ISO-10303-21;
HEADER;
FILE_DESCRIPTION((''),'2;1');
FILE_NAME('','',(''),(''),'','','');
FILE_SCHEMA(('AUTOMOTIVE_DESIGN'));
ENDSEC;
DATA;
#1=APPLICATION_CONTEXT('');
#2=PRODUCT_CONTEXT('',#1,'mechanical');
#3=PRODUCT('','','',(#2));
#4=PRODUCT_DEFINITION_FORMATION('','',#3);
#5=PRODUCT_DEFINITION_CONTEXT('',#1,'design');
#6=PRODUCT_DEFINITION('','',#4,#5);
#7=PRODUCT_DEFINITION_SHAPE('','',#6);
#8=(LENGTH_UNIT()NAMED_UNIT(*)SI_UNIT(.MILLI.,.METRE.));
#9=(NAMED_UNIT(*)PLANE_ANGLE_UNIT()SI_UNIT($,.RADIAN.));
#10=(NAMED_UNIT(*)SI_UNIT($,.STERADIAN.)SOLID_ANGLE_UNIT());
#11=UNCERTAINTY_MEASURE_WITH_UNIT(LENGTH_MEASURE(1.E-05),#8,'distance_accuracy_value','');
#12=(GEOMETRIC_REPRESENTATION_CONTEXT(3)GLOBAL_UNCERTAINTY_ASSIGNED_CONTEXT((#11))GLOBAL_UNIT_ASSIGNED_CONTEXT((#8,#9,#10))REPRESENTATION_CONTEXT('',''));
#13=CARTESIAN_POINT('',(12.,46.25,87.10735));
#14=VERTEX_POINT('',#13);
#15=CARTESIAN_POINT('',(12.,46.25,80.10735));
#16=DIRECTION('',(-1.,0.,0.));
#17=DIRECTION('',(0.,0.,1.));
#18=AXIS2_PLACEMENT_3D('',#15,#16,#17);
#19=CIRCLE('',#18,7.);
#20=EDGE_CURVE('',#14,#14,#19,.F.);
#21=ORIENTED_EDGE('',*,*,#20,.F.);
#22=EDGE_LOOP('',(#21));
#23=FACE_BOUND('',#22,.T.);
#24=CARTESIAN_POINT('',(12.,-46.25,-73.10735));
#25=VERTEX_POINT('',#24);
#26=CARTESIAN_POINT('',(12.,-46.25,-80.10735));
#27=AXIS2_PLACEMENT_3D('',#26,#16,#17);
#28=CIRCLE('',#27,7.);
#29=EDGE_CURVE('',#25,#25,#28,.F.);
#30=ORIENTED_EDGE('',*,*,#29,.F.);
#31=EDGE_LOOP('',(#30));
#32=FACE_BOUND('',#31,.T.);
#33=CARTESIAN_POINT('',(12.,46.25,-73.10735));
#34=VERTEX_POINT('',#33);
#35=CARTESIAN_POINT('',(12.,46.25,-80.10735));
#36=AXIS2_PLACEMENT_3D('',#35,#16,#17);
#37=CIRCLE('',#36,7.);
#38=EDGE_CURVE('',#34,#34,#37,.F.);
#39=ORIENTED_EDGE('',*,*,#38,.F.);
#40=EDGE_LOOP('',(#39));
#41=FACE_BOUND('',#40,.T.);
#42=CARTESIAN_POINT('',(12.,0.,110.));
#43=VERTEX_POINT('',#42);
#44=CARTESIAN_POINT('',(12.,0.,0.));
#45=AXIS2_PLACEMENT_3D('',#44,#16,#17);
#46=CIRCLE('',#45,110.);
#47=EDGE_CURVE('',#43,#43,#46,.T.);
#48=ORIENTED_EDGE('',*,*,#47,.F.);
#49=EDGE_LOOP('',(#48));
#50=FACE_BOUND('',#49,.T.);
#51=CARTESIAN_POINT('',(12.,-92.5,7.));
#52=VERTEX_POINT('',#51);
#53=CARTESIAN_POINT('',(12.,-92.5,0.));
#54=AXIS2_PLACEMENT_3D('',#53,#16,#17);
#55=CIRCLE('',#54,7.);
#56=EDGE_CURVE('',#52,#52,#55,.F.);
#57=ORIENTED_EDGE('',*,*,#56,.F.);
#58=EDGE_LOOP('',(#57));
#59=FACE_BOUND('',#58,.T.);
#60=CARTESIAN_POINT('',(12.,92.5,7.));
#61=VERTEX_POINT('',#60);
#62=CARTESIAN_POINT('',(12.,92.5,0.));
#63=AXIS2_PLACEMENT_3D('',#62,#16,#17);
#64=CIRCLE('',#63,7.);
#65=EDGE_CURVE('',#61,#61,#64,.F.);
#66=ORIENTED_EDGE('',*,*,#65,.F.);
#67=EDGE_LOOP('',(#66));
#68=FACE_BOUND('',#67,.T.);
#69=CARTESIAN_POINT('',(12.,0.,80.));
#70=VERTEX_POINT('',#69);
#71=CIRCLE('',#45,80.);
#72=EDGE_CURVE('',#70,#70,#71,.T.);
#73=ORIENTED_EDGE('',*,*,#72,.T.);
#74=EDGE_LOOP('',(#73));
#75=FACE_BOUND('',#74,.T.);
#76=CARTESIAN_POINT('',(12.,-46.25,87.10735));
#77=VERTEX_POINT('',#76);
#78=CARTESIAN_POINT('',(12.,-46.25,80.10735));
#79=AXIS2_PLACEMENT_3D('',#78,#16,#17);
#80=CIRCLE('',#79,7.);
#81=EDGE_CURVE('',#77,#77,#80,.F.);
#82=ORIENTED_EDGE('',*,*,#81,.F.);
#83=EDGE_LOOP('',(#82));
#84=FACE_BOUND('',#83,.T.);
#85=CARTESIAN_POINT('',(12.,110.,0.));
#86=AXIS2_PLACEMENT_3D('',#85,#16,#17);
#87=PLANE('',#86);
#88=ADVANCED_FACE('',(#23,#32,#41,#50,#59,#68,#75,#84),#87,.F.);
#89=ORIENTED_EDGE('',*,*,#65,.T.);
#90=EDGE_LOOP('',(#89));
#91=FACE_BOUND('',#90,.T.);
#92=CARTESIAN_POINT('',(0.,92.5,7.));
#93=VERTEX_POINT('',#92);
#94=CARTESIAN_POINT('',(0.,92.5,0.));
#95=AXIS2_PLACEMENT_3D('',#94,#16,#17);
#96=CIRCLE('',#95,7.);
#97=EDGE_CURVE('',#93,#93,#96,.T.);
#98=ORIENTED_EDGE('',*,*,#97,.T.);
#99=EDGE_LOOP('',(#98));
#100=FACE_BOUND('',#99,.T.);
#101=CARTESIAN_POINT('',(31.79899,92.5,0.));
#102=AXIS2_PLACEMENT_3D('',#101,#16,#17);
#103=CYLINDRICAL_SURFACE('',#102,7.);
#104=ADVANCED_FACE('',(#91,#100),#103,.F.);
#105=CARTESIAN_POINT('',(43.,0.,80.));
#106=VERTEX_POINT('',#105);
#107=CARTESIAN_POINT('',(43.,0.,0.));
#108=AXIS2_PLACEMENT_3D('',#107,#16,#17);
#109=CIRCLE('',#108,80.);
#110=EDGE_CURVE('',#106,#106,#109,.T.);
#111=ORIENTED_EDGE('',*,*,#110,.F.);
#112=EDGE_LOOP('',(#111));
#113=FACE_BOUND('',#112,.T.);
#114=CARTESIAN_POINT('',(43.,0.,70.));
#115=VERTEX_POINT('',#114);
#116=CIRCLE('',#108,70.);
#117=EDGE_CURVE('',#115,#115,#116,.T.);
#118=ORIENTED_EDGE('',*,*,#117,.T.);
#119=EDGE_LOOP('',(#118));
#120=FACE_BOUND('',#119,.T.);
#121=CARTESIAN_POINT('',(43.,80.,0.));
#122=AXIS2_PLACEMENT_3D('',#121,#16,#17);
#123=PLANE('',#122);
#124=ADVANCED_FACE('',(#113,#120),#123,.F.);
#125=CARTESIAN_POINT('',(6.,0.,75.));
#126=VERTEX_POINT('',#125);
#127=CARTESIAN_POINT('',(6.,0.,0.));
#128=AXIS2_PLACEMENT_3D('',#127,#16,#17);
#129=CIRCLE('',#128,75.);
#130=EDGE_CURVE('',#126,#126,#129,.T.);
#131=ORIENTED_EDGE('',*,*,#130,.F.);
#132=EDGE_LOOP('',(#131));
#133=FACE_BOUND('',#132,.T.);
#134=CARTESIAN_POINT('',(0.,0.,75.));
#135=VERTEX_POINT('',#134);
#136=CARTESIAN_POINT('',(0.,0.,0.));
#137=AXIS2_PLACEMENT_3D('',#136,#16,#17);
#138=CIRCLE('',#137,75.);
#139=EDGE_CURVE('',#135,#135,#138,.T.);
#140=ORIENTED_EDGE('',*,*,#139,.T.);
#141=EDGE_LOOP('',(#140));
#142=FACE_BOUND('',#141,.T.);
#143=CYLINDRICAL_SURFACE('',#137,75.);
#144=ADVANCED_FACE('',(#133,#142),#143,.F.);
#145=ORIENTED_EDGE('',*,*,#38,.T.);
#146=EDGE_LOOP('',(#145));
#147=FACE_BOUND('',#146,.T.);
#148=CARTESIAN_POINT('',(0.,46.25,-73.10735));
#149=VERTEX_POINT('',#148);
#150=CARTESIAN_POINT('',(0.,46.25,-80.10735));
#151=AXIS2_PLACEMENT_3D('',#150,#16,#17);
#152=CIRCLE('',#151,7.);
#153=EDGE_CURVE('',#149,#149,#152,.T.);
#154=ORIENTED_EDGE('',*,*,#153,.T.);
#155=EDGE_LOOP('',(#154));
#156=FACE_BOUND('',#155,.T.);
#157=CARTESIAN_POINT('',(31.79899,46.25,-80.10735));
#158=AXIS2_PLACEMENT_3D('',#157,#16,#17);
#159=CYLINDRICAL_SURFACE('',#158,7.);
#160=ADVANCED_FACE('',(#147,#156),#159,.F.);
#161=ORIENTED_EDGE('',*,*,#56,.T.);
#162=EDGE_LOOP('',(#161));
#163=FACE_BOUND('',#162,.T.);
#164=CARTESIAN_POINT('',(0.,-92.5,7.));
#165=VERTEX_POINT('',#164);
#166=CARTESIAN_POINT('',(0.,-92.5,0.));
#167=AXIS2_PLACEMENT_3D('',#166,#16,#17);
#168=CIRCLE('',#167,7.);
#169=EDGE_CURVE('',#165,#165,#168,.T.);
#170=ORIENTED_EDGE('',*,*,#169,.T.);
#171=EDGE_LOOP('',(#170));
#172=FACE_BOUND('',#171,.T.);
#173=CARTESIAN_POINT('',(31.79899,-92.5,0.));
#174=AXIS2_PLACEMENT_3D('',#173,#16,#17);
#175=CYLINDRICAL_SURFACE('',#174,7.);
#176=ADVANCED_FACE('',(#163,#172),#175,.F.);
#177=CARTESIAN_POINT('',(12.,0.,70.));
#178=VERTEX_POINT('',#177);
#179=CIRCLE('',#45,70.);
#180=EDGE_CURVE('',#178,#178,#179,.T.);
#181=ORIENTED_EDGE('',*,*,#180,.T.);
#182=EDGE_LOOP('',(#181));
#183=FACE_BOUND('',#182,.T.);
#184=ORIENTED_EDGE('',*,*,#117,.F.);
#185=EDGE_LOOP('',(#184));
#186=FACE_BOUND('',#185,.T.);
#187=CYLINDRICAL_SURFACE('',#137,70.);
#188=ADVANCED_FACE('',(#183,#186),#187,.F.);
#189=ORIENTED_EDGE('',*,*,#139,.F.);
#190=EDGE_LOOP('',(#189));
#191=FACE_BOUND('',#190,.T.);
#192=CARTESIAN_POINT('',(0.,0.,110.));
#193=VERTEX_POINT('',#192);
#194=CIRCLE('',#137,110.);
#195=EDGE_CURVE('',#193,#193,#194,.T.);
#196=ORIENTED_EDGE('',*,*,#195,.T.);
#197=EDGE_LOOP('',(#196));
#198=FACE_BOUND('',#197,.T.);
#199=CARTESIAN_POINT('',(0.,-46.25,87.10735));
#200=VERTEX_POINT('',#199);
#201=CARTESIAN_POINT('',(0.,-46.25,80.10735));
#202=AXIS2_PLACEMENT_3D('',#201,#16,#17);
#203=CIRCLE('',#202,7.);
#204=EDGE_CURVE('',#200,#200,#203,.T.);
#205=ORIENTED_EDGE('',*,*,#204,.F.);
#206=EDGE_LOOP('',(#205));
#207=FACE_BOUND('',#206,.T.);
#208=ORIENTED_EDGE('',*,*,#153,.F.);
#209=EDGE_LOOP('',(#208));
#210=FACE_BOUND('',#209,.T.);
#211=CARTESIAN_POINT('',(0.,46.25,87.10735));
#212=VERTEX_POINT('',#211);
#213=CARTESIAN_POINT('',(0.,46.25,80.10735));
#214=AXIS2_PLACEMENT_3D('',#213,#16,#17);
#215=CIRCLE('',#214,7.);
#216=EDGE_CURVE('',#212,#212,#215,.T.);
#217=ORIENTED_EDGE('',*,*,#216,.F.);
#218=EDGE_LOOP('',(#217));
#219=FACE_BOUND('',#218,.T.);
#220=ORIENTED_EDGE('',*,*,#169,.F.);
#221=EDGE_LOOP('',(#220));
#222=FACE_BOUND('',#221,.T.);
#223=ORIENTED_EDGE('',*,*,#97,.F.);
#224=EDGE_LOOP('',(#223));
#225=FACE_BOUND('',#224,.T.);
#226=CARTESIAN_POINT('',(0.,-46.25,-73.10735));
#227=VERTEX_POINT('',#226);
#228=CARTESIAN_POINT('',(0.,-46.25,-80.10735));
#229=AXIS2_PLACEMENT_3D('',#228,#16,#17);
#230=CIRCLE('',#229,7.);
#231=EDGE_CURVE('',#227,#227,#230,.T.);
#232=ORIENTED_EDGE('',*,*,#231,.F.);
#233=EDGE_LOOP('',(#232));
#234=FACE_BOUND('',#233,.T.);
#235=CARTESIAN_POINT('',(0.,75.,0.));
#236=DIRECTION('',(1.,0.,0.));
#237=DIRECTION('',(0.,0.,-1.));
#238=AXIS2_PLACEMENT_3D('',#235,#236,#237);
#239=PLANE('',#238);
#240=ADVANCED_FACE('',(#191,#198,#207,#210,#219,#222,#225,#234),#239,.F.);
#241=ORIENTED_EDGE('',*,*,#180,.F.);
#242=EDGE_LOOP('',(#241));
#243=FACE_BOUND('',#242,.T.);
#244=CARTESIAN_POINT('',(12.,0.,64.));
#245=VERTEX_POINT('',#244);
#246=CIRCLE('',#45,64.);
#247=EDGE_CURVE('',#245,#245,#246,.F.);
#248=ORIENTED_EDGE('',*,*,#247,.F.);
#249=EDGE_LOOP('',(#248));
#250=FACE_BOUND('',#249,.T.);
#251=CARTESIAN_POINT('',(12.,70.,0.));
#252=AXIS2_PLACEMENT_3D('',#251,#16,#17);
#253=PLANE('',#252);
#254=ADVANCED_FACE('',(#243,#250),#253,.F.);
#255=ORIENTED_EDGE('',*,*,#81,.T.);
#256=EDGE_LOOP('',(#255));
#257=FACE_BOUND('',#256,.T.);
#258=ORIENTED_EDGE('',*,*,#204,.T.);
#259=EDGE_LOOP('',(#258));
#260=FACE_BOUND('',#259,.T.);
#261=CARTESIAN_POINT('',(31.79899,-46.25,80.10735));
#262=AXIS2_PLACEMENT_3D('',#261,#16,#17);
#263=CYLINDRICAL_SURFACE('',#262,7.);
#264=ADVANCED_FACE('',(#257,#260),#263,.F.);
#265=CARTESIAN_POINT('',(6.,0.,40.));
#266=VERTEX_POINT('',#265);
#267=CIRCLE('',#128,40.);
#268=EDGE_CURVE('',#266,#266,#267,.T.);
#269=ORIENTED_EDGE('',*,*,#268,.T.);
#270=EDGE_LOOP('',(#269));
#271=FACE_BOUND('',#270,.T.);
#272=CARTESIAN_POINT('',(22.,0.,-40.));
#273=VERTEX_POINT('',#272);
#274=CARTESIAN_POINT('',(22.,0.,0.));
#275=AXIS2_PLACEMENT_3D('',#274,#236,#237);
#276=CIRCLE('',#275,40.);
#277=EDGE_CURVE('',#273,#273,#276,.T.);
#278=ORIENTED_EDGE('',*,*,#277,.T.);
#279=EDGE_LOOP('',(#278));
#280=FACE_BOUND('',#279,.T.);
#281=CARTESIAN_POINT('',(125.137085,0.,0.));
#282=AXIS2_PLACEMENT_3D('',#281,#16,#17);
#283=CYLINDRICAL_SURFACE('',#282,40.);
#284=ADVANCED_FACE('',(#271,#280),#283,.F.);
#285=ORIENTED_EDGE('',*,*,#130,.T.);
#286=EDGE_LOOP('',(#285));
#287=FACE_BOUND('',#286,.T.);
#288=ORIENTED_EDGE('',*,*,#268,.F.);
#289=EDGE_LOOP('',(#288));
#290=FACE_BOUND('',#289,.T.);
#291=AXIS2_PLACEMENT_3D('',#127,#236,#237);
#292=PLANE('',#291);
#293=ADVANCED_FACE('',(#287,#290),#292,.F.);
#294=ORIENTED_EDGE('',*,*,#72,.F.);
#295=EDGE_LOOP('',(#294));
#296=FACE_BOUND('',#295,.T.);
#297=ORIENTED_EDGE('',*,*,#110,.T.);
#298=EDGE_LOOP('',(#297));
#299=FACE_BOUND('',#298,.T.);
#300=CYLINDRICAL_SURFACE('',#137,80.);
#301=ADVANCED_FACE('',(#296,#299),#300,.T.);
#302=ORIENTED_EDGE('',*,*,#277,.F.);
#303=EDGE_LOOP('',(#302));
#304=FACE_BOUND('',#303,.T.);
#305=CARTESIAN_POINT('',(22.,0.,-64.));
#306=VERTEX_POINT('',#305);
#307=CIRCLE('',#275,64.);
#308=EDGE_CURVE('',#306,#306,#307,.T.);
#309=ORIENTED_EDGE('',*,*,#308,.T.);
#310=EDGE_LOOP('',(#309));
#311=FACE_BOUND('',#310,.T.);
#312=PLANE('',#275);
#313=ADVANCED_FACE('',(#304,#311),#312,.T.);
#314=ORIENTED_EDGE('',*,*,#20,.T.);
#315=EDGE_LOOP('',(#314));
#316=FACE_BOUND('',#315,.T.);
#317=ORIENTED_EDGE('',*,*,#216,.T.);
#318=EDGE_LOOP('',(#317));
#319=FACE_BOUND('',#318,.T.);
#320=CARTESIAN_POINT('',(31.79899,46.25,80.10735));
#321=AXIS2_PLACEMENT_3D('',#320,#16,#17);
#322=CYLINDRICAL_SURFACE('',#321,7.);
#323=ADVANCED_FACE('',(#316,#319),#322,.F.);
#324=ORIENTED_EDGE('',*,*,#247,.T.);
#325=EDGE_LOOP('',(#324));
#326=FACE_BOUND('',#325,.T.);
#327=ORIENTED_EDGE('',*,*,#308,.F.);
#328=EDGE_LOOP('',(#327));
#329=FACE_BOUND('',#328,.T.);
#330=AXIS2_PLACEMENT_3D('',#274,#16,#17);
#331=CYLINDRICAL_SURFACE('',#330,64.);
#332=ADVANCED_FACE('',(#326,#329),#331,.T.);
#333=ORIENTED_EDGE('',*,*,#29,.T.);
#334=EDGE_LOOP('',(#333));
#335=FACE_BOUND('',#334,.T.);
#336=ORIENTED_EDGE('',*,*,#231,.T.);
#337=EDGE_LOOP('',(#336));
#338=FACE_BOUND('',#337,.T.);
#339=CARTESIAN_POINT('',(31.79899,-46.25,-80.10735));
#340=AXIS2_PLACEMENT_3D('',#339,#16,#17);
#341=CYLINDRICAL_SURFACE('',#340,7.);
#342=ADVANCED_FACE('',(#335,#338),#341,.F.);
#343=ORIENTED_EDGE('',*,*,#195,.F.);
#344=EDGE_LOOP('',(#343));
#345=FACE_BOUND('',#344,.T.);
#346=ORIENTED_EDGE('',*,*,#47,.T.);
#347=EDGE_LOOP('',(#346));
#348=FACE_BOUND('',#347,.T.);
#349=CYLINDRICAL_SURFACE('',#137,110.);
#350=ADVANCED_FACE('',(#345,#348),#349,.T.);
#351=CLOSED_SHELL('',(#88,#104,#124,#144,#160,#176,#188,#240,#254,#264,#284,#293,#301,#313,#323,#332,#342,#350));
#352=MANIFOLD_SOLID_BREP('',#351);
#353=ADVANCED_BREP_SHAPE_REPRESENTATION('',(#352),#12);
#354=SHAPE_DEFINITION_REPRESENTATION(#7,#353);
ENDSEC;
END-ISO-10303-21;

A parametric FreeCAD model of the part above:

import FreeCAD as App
import Part
import Sketcher

V = App.Vector


def add_polygon(sketch, points):
    """Adds a closed chain of lines whose ends are joined by coincident constraints."""
    first, n = sketch.GeometryCount, len(points)
    for a, b in zip(points, points[1:] + points[:1]):
        sketch.addGeometry(Part.LineSegment(App.Vector(*a, 0), App.Vector(*b, 0)), False)
    for i in range(n):
        sketch.addConstraint(Sketcher.Constraint("Coincident", first + i, 2, first + (i + 1) % n, 1))

doc = App.newDocument("Part")
params = doc.addObject("Spreadsheet::Sheet", "Params")
for row, (alias, value) in enumerate([
    ("sketch1_width", "6 mm"),
    ("sketch1_width2", "31 mm"),
    ("sketch1_height", "35 mm"),
    ("sketch1_height2", "75 mm"),
    ("sketch1_height3", "70 mm"),
    ("revolution_angle", "360 deg"),
    ("sketch2_diameter", "14 mm"),
    ("pocket1_length", "12 mm"),
    ("sketch3_diameter", "80 mm"),
    ("pocket2_length", "6 mm"),
    ("sketch4_diameter", "128 mm"),
    ("sketch4_diameter2", "80 mm"),
    ("pad1_length", "10 mm"),
], start=1):
    params.set(f"A{row}", alias)
    params.set(f"B{row}", "=" + value)
    params.setAlias(f"B{row}", alias)

body = doc.addObject("PartDesign::Body", "Body")

sketch1 = body.newObject("Sketcher::SketchObject", "Sketch")
sketch1.AttachmentSupport = (doc.getObject("XY_Plane"), [""])
sketch1.MapMode = "FlatFace"
add_polygon(sketch1, [(0, 110), (0, 75), (6, 75), (6, 0), (12, 0), (12, 70), (43, 70), (43, 80), (12, 80), (12, 110)])
sketch1.addConstraint(Sketcher.Constraint("Vertical", 0))
sketch1.addConstraint(Sketcher.Constraint("Horizontal", 1))
sketch1.addConstraint(Sketcher.Constraint("Vertical", 2))
sketch1.addConstraint(Sketcher.Constraint("Horizontal", 3))
sketch1.addConstraint(Sketcher.Constraint("Vertical", 4))
sketch1.addConstraint(Sketcher.Constraint("Horizontal", 5))
sketch1.addConstraint(Sketcher.Constraint("Vertical", 6))
sketch1.addConstraint(Sketcher.Constraint("Horizontal", 7))
sketch1.addConstraint(Sketcher.Constraint("Vertical", 8))
sketch1.addConstraint(Sketcher.Constraint("Horizontal", 9))
sketch1.addConstraint(Sketcher.Constraint("PointOnObject", 0, 2, -2))
sketch1.addConstraint(Sketcher.Constraint("PointOnObject", 2, 2, -1))
sketch1.addConstraint(Sketcher.Constraint("Vertical", 4, 2, 7, 2))
sketch1.addConstraint(Sketcher.Constraint("Equal", 1, 3))
sketch1.addConstraint(Sketcher.Constraint("DistanceX", 1, 1, 1, 2, 6.0))
sketch1.addConstraint(Sketcher.Constraint("DistanceX", 5, 1, 5, 2, 31.0))
sketch1.addConstraint(Sketcher.Constraint("DistanceY", 0, 2, 0, 1, 35.0))
sketch1.addConstraint(Sketcher.Constraint("DistanceY", 2, 2, 2, 1, 75.0))
sketch1.addConstraint(Sketcher.Constraint("DistanceY", 4, 1, 4, 2, 70.0))
sketch1.addConstraint(Sketcher.Constraint("DistanceY", 6, 1, 6, 2, 10.0))
sketch1.setExpression("Constraints[24]", "Params.sketch1_width")
sketch1.setExpression("Constraints[25]", "Params.sketch1_width2")
sketch1.setExpression("Constraints[26]", "Params.sketch1_height")
sketch1.setExpression("Constraints[27]", "Params.sketch1_height2")
sketch1.setExpression("Constraints[28]", "Params.sketch1_height3")
revolution = body.newObject("PartDesign::Revolution", "Revolution")
revolution.Profile = sketch1
revolution.ReferenceAxis = (sketch1, ["H_Axis"])
revolution.setExpression("Angle", "Params.revolution_angle")

sketch2 = body.newObject("Sketcher::SketchObject", "Sketch001")
sketch2.AttachmentSupport = (doc.getObject("YZ_Plane"), [""])
sketch2.MapMode = "FlatFace"
sketch2.addGeometry(Part.Circle(V(92, 0, 0), V(0, 0, 1), 7), False)
sketch2.addGeometry(Part.Circle(V(46, 80, 0), V(0, 0, 1), 7), False)
sketch2.addGeometry(Part.Circle(V(-46, 80, 0), V(0, 0, 1), 7), False)
sketch2.addGeometry(Part.Circle(V(-92, 0, 0), V(0, 0, 1), 7), False)
sketch2.addGeometry(Part.Circle(V(-46, -80, 0), V(0, 0, 1), 7), False)
sketch2.addGeometry(Part.Circle(V(46, -80, 0), V(0, 0, 1), 7), False)
sketch2.addConstraint(Sketcher.Constraint("Equal", 0, 1))
sketch2.addConstraint(Sketcher.Constraint("Equal", 1, 2))
sketch2.addConstraint(Sketcher.Constraint("Equal", 2, 3))
sketch2.addConstraint(Sketcher.Constraint("Equal", 3, 4))
sketch2.addConstraint(Sketcher.Constraint("Equal", 4, 5))
sketch2.addConstraint(Sketcher.Constraint("Symmetric", 0, 3, 3, 3, -1, 1))
sketch2.addConstraint(Sketcher.Constraint("Symmetric", 1, 3, 4, 3, -1, 1))
sketch2.addConstraint(Sketcher.Constraint("Symmetric", 2, 3, 5, 3, -1, 1))
sketch2.addConstraint(Sketcher.Constraint("Symmetric", 1, 3, 2, 3, -2))
sketch2.addConstraint(Sketcher.Constraint("PointOnObject", 0, 3, -1))
sketch2.addConstraint(Sketcher.Constraint("Diameter", 0, 14.0))
sketch2.addConstraint(Sketcher.Constraint("DistanceX", 3, 3, 0, 3, 185.0))
sketch2.addConstraint(Sketcher.Constraint("DistanceX", 2, 3, 1, 3, 92.5))
sketch2.addConstraint(Sketcher.Constraint("DistanceY", 4, 3, 2, 3, 160.2147))
sketch2.setExpression("Constraints[10]", "Params.sketch2_diameter")
pocket1 = body.newObject("PartDesign::Pocket", "Pocket")
pocket1.Profile = sketch2
pocket1.setExpression("Length", "Params.pocket1_length")
pocket1.Reversed = True

sketch3 = body.newObject("Sketcher::SketchObject", "Sketch002")
sketch3.AttachmentSupport = (doc.getObject("YZ_Plane"), [""])
sketch3.MapMode = "FlatFace"
sketch3.AttachmentOffset = App.Placement(V(0, 0, 6), App.Rotation())
sketch3.addGeometry(Part.Circle(V(0, 0, 0), V(0, 0, 1), 40), False)
sketch3.addConstraint(Sketcher.Constraint("Coincident", 0, 3, -1, 1))
sketch3.addConstraint(Sketcher.Constraint("Diameter", 0, 80.0))
sketch3.setExpression("Constraints[1]", "Params.sketch3_diameter")
pocket2 = body.newObject("PartDesign::Pocket", "Pocket001")
pocket2.Profile = sketch3
pocket2.setExpression("Length", "Params.pocket2_length")
pocket2.Reversed = True

sketch4 = body.newObject("Sketcher::SketchObject", "Sketch003")
sketch4.AttachmentSupport = (doc.getObject("YZ_Plane"), [""])
sketch4.MapMode = "FlatFace"
sketch4.AttachmentOffset = App.Placement(V(0, 0, 12), App.Rotation())
sketch4.addGeometry(Part.Circle(V(0, 0, 0), V(0, 0, 1), 64), False)
sketch4.addGeometry(Part.Circle(V(0, 0, 0), V(0, 0, 1), 40), False)
sketch4.addConstraint(Sketcher.Constraint("Coincident", 0, 3, -1, 1))
sketch4.addConstraint(Sketcher.Constraint("Coincident", 1, 3, -1, 1))
sketch4.addConstraint(Sketcher.Constraint("Diameter", 0, 128.0))
sketch4.addConstraint(Sketcher.Constraint("Diameter", 1, 80.0))
sketch4.setExpression("Constraints[2]", "Params.sketch4_diameter")
sketch4.setExpression("Constraints[3]", "Params.sketch4_diameter2")
pad1 = body.newObject("PartDesign::Pad", "Pad")
pad1.Profile = sketch4
pad1.setExpression("Length", "Params.pad1_length")

doc.recompute()
